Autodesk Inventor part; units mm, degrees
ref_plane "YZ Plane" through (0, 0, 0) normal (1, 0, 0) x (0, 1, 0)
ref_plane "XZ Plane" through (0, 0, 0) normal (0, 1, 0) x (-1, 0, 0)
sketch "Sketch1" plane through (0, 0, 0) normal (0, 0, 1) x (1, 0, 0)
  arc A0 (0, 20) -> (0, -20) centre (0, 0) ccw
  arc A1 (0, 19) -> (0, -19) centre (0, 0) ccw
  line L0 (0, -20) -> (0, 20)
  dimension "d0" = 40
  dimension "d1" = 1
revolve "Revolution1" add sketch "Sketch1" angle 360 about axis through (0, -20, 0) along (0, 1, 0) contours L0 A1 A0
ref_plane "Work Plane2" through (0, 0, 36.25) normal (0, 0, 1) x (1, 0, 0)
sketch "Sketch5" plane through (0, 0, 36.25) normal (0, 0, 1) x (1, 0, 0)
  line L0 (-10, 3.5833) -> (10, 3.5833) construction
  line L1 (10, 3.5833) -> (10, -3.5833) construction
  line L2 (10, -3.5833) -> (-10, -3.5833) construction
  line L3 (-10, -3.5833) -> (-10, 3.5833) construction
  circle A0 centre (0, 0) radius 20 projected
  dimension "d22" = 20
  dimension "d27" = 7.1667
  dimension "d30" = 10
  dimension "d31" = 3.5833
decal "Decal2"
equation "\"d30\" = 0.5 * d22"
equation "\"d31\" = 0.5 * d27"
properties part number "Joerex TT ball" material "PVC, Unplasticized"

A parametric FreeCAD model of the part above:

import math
import FreeCAD as App
import Part
import Sketcher
Q = App.Units.Quantity

doc = App.newDocument("Part")
body = doc.addObject("PartDesign::Body", "Body")

sketch1 = body.newObject("Sketcher::SketchObject", "Sketch")
sketch1.AttachmentSupport = (doc.getObject("XY_Plane"), [""])
sketch1.MapMode = "FlatFace"
sketch1.addGeometry(Part.LineSegment(App.Vector(0, 19, 0), App.Vector(0, 20, 0)), False)
sketch1.addGeometry(Part.ArcOfCircle(Part.Circle(App.Vector(0, 0, 0), App.Vector(0, 0, 1), 20), math.radians(90), math.radians(270)), False)
sketch1.addGeometry(Part.LineSegment(App.Vector(0, -20, 0), App.Vector(0, -19, 0)), False)
sketch1.addGeometry(Part.ArcOfCircle(Part.Circle(App.Vector(0, 0, 0), App.Vector(0, 0, 1), 19), math.radians(90), math.radians(270)), False)
sketch1.addConstraint(Sketcher.Constraint("Coincident", 0, 2, 1, 1))
sketch1.addConstraint(Sketcher.Constraint("Coincident", 1, 2, 2, 1))
sketch1.addConstraint(Sketcher.Constraint("Coincident", 2, 2, 3, 2))
sketch1.addConstraint(Sketcher.Constraint("Coincident", 3, 1, 0, 1))
sketch1.addConstraint(Sketcher.Constraint("Vertical", 0))
sketch1.addConstraint(Sketcher.Constraint("Vertical", 2))
sketch1.addConstraint(Sketcher.Constraint("Coincident", 1, 3, -1, 1))
sketch1.addConstraint(Sketcher.Constraint("Coincident", 3, 3, -1, 1))
sketch1.addConstraint(Sketcher.Constraint("PointOnObject", 0, 2, -2))
sketch1.addConstraint(Sketcher.Constraint("PointOnObject", 1, 2, -2))
sketch1.addConstraint(Sketcher.Constraint("Radius", 1, Q("20 mm")))
sketch1.addConstraint(Sketcher.Constraint("DistanceY", 0, 1, 0, 2, Q("1 mm")))
revolution = body.newObject("PartDesign::Revolution", "Revolution")
revolution.Profile = sketch1
revolution.ReferenceAxis = (sketch1, ["V_Axis"])
revolution.Angle = 360

doc.recompute()
